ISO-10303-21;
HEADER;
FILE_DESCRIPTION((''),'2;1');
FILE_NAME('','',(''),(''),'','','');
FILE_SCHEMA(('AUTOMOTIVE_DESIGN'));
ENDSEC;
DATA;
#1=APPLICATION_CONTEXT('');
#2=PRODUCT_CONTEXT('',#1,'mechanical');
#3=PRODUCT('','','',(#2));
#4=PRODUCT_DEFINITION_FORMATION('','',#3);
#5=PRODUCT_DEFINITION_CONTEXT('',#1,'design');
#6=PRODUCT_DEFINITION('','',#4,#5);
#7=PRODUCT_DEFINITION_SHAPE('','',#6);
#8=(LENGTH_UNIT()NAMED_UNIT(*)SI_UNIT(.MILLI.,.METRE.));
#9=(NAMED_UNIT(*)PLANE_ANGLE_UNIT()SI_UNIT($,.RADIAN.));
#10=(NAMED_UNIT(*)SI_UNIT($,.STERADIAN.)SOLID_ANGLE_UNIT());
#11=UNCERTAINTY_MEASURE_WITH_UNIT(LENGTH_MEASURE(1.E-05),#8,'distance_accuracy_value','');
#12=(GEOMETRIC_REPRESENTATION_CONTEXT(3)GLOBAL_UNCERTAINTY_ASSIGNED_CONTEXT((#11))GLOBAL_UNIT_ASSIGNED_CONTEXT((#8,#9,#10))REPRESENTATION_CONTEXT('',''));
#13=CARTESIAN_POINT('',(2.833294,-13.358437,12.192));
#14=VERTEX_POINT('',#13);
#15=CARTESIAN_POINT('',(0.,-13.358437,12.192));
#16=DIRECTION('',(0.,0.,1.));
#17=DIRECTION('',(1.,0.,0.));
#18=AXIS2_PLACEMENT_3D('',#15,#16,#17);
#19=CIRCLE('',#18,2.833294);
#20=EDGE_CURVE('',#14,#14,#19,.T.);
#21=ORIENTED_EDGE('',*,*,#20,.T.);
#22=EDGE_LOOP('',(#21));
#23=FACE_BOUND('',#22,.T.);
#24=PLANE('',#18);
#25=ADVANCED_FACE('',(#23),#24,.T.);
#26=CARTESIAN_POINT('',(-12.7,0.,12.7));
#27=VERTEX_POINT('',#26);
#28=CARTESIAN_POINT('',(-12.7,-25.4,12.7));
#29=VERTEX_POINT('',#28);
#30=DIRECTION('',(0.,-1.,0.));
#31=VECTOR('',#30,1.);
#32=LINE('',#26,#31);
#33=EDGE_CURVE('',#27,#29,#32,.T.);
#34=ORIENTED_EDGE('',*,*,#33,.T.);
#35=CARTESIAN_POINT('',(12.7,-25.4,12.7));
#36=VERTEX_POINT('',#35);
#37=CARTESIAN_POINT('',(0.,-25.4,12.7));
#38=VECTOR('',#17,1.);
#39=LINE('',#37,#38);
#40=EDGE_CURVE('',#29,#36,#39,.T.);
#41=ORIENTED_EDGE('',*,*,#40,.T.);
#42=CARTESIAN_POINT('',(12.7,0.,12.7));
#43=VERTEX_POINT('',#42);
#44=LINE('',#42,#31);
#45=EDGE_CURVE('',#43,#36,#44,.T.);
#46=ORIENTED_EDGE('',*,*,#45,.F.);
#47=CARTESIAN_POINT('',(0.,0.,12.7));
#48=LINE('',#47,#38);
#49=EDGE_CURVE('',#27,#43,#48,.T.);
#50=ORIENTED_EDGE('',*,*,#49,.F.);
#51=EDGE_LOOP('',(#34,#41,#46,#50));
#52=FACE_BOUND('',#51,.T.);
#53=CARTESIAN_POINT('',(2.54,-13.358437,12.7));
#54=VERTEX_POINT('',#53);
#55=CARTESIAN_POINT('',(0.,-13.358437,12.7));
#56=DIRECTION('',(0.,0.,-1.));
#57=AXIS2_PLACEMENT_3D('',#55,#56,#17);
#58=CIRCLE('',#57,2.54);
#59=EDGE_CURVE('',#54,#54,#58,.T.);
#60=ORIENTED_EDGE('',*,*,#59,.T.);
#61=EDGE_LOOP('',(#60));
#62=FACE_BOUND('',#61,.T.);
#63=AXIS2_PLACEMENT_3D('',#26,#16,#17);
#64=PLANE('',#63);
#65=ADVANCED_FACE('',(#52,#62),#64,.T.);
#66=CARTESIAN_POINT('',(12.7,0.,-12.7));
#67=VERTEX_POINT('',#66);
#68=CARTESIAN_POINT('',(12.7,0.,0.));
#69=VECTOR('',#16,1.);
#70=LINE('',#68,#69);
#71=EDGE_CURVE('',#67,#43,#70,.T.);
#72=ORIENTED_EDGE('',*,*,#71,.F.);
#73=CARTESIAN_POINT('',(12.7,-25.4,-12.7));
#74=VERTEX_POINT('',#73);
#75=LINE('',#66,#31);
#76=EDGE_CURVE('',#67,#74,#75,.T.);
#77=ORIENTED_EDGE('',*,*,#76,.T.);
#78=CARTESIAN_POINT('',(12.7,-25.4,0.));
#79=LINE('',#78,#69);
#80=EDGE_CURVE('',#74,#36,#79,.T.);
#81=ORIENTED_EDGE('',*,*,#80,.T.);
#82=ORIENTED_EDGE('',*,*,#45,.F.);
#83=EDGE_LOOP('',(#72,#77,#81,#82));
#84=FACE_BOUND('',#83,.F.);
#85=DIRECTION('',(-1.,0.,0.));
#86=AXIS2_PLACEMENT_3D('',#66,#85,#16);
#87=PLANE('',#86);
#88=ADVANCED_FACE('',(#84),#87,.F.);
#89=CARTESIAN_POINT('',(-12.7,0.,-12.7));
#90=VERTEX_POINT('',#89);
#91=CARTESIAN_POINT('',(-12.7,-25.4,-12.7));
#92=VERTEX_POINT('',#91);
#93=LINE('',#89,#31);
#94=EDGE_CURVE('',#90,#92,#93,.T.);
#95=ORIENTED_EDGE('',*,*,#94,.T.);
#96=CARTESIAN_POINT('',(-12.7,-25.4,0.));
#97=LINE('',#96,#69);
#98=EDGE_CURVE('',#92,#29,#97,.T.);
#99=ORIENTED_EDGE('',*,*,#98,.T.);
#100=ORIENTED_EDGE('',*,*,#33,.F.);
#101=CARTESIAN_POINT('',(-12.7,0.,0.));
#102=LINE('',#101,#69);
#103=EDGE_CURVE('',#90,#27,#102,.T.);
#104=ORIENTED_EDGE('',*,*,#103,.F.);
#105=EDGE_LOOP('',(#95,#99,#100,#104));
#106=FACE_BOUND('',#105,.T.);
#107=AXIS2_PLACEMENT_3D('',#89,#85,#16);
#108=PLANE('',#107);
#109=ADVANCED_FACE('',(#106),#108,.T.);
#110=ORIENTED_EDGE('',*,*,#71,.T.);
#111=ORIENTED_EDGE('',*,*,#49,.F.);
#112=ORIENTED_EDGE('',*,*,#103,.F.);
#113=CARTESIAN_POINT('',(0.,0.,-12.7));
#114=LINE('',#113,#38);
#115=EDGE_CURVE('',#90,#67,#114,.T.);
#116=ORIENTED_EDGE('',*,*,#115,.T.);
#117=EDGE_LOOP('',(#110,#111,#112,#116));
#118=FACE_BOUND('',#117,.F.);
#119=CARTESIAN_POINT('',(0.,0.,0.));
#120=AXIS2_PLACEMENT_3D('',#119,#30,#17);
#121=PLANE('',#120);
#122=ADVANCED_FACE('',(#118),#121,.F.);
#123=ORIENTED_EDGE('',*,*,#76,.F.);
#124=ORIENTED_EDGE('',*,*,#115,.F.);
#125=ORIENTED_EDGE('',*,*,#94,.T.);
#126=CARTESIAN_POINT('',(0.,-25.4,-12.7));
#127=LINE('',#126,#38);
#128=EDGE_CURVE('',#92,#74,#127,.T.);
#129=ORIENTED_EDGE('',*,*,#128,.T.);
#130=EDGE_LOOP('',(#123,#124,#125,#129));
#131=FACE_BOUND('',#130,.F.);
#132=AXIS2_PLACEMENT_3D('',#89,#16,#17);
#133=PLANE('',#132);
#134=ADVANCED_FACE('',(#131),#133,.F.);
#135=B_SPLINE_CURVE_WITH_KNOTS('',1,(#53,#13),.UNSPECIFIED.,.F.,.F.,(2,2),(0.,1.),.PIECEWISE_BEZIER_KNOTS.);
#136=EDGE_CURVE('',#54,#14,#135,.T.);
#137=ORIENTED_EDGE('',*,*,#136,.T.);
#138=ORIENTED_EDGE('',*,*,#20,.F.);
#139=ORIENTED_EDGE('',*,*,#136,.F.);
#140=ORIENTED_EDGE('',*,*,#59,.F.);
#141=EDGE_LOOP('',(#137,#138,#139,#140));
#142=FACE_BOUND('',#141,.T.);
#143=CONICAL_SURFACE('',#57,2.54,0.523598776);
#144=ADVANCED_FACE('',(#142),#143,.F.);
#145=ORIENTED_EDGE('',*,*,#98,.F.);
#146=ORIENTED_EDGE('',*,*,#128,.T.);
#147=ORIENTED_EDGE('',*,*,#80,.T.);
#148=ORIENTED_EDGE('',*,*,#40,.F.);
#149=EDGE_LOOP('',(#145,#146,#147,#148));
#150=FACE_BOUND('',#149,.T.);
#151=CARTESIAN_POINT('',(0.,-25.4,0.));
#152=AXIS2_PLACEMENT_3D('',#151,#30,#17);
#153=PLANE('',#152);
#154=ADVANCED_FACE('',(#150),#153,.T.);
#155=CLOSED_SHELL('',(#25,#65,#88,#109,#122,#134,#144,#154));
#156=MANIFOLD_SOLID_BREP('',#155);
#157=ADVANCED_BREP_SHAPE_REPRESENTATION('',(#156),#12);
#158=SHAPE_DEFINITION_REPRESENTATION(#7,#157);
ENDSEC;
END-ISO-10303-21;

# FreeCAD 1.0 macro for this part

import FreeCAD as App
import Part
import Sketcher
Q = App.Units.Quantity

doc = App.newDocument("Part")
body = doc.addObject("PartDesign::Body", "Body")

# Sketch on XZ plane
sketch1 = body.newObject("Sketcher::SketchObject", "Sketch")
sketch1.AttachmentSupport = (doc.getObject("XZ_Plane"), [""])
sketch1.MapMode = "FlatFace"
sketch1.addGeometry(Part.LineSegment(App.Vector(-12.7, 12.7, 0), App.Vector(-12.7, -12.7, 0)), False)
sketch1.addGeometry(Part.LineSegment(App.Vector(-12.7, -12.7, 0), App.Vector(12.7, -12.7, 0)), False)
sketch1.addGeometry(Part.LineSegment(App.Vector(12.7, -12.7, 0), App.Vector(12.7, 12.7, 0)), False)
sketch1.addGeometry(Part.LineSegment(App.Vector(12.7, 12.7, 0), App.Vector(-12.7, 12.7, 0)), False)
sketch1.addConstraint(Sketcher.Constraint("Coincident", 0, 2, 1, 1))
sketch1.addConstraint(Sketcher.Constraint("Coincident", 1, 2, 2, 1))
sketch1.addConstraint(Sketcher.Constraint("Coincident", 2, 2, 3, 1))
sketch1.addConstraint(Sketcher.Constraint("Coincident", 3, 2, 0, 1))
sketch1.addConstraint(Sketcher.Constraint("Vertical", 0))
sketch1.addConstraint(Sketcher.Constraint("Horizontal", 1))
sketch1.addConstraint(Sketcher.Constraint("Vertical", 2))
sketch1.addConstraint(Sketcher.Constraint("Horizontal", 3))
sketch1.addConstraint(Sketcher.Constraint("Symmetric", 0, 2, 2, 2, -1, 1))
sketch1.addConstraint(Sketcher.Constraint("Equal", 3, 0))
sketch1.addConstraint(Sketcher.Constraint("DistanceX", 1, 1, 1, 2, Q("1 in")))
pad1 = body.newObject("PartDesign::Pad", "Pad")
pad1.Profile = sketch1
pad1.Length = Q("1 in")

# Sketch on XY plane
sketch2 = body.newObject("Sketcher::SketchObject", "Sketch001")
sketch2.AttachmentSupport = (doc.getObject("XY_Plane"), [""])
sketch2.MapMode = "FlatFace"
sketch2.AttachmentOffset = App.Placement(App.Vector(0, 0, 0.5 * 25.4), App.Rotation())
sketch2.addGeometry(Part.Circle(App.Vector(0, -13.358437, 0), App.Vector(0, 0, 1), 2.54), False)
sketch2.addConstraint(Sketcher.Constraint("PointOnObject", 0, 3, -2))
sketch2.addConstraint(Sketcher.Constraint("Diameter", 0, Q("0.2 in")))
sketch2.addConstraint(Sketcher.Constraint("DistanceY", 0, 3, -1, 1, Q("13.358437 mm")))
pocket1 = body.newObject("PartDesign::Pocket", "Pocket")
pocket1.Profile = sketch2
pocket1.Length = Q("0.02 in")
pocket1.TaperAngle = 30

doc.recompute()
